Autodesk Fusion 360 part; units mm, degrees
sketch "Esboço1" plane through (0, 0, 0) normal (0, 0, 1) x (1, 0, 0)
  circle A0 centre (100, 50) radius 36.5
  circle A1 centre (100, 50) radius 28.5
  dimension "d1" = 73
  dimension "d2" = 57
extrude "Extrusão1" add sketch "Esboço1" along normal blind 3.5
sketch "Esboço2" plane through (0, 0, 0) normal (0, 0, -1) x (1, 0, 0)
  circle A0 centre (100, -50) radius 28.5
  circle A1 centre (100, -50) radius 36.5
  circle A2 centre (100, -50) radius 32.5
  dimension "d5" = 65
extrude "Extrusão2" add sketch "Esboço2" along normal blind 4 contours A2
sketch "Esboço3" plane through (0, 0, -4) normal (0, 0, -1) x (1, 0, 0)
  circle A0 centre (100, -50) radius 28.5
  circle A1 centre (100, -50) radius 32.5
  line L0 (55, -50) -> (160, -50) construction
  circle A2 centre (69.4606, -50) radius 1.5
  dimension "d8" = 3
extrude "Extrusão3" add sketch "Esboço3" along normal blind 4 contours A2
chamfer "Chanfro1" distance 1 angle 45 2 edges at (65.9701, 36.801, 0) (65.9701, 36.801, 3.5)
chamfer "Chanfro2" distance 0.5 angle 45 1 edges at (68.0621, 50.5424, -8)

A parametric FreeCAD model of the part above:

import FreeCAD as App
import Part
import Sketcher

V = App.Vector
Q = App.Units.Quantity


def edges_at(feature, points):
    """Names of the edges that pass closest to the given points."""
    edges = feature.Shape.Edges
    near = lambda p: min(range(len(edges)), key=lambda i: edges[i].distToShape(Part.Vertex(*p))[0])
    return sorted({f"Edge{near(p) + 1}" for p in points})

doc = App.newDocument("Part")
body = doc.addObject("PartDesign::Body", "Body")

# Sketch on XY plane
sketch1 = body.newObject("Sketcher::SketchObject", "Sketch")
sketch1.AttachmentSupport = (doc.getObject("XY_Plane"), [""])
sketch1.MapMode = "FlatFace"
sketch1.addGeometry([
    Part.Circle(V(100, 50, 0), V(0, 0, 1), 36.5),
    Part.Circle(V(100, 50, 0), V(0, 0, 1), 28.5),
], False)
sketch1.addConstraint([
    Sketcher.Constraint("Coincident", 1, 3, 0, 3),
    Sketcher.Constraint("Diameter", 0, Q("73 mm")),
    Sketcher.Constraint("Diameter", 1, Q("57 mm")),
    Sketcher.Constraint("DistanceX", -1, 1, 0, 3, Q("100 mm")),
    Sketcher.Constraint("DistanceY", -1, 1, 0, 3, Q("50 mm")),
])
pad1 = body.newObject("PartDesign::Pad", "Pad")
pad1.Profile = sketch1
pad1.Length = 3.5

# Sketch on XY plane
sketch2 = body.newObject("Sketcher::SketchObject", "Sketch001")
sketch2.AttachmentSupport = (doc.getObject("XY_Plane"), [""])
sketch2.MapMode = "FlatFace"
sketch2.addGeometry([
    Part.Circle(V(100, 50, 0), V(0, 0, 1), 32.5),
    Part.Circle(V(100, 50, 0), V(0, 0, 1), 28.5),
], False)
sketch2.addConstraint([
    Sketcher.Constraint("Coincident", 1, 3, 0, 3),
    Sketcher.Constraint("Diameter", 0, Q("65 mm")),
    Sketcher.Constraint("Diameter", 1, Q("57 mm")),
    Sketcher.Constraint("DistanceX", -1, 1, 0, 3, Q("100 mm")),
    Sketcher.Constraint("DistanceY", -1, 1, 0, 3, Q("50 mm")),
])
pad2 = body.newObject("PartDesign::Pad", "Pad001")
pad2.Profile = sketch2
pad2.Length = 4
pad2.Reversed = True

# Sketch on XY plane
sketch3 = body.newObject("Sketcher::SketchObject", "Sketch002")
sketch3.AttachmentSupport = (doc.getObject("XY_Plane"), [""])
sketch3.MapMode = "FlatFace"
sketch3.AttachmentOffset = App.Placement(V(0, 0, -4), App.Rotation())
sketch3.addGeometry(Part.Circle(V(69.4606, 50, 0), V(0, 0, 1), 1.5), False)
sketch3.addConstraint([
    Sketcher.Constraint("Diameter", 0, Q("3 mm")),
    Sketcher.Constraint("DistanceY", -1, 1, 0, 3, Q("50 mm")),
    Sketcher.Constraint("DistanceX", -1, 1, 0, 3, Q("69.4606 mm")),
])
pad3 = body.newObject("PartDesign::Pad", "Pad002")
pad3.Profile = sketch3
pad3.Length = 4
pad3.Reversed = True
doc.recompute()

chamfer = body.newObject("PartDesign::Chamfer", "Chamfer")
chamfer.Base = (pad3, edges_at(pad3, [(65.97, 36.801, 0), (65.97, 36.801, 3.5)]))
chamfer.Size = 1
doc.recompute()

chamfer2 = body.newObject("PartDesign::Chamfer", "Chamfer001")
chamfer2.Base = (chamfer, edges_at(chamfer, [(68.062, 50.542, -8)]))
chamfer2.Size = 0.5

doc.recompute()
